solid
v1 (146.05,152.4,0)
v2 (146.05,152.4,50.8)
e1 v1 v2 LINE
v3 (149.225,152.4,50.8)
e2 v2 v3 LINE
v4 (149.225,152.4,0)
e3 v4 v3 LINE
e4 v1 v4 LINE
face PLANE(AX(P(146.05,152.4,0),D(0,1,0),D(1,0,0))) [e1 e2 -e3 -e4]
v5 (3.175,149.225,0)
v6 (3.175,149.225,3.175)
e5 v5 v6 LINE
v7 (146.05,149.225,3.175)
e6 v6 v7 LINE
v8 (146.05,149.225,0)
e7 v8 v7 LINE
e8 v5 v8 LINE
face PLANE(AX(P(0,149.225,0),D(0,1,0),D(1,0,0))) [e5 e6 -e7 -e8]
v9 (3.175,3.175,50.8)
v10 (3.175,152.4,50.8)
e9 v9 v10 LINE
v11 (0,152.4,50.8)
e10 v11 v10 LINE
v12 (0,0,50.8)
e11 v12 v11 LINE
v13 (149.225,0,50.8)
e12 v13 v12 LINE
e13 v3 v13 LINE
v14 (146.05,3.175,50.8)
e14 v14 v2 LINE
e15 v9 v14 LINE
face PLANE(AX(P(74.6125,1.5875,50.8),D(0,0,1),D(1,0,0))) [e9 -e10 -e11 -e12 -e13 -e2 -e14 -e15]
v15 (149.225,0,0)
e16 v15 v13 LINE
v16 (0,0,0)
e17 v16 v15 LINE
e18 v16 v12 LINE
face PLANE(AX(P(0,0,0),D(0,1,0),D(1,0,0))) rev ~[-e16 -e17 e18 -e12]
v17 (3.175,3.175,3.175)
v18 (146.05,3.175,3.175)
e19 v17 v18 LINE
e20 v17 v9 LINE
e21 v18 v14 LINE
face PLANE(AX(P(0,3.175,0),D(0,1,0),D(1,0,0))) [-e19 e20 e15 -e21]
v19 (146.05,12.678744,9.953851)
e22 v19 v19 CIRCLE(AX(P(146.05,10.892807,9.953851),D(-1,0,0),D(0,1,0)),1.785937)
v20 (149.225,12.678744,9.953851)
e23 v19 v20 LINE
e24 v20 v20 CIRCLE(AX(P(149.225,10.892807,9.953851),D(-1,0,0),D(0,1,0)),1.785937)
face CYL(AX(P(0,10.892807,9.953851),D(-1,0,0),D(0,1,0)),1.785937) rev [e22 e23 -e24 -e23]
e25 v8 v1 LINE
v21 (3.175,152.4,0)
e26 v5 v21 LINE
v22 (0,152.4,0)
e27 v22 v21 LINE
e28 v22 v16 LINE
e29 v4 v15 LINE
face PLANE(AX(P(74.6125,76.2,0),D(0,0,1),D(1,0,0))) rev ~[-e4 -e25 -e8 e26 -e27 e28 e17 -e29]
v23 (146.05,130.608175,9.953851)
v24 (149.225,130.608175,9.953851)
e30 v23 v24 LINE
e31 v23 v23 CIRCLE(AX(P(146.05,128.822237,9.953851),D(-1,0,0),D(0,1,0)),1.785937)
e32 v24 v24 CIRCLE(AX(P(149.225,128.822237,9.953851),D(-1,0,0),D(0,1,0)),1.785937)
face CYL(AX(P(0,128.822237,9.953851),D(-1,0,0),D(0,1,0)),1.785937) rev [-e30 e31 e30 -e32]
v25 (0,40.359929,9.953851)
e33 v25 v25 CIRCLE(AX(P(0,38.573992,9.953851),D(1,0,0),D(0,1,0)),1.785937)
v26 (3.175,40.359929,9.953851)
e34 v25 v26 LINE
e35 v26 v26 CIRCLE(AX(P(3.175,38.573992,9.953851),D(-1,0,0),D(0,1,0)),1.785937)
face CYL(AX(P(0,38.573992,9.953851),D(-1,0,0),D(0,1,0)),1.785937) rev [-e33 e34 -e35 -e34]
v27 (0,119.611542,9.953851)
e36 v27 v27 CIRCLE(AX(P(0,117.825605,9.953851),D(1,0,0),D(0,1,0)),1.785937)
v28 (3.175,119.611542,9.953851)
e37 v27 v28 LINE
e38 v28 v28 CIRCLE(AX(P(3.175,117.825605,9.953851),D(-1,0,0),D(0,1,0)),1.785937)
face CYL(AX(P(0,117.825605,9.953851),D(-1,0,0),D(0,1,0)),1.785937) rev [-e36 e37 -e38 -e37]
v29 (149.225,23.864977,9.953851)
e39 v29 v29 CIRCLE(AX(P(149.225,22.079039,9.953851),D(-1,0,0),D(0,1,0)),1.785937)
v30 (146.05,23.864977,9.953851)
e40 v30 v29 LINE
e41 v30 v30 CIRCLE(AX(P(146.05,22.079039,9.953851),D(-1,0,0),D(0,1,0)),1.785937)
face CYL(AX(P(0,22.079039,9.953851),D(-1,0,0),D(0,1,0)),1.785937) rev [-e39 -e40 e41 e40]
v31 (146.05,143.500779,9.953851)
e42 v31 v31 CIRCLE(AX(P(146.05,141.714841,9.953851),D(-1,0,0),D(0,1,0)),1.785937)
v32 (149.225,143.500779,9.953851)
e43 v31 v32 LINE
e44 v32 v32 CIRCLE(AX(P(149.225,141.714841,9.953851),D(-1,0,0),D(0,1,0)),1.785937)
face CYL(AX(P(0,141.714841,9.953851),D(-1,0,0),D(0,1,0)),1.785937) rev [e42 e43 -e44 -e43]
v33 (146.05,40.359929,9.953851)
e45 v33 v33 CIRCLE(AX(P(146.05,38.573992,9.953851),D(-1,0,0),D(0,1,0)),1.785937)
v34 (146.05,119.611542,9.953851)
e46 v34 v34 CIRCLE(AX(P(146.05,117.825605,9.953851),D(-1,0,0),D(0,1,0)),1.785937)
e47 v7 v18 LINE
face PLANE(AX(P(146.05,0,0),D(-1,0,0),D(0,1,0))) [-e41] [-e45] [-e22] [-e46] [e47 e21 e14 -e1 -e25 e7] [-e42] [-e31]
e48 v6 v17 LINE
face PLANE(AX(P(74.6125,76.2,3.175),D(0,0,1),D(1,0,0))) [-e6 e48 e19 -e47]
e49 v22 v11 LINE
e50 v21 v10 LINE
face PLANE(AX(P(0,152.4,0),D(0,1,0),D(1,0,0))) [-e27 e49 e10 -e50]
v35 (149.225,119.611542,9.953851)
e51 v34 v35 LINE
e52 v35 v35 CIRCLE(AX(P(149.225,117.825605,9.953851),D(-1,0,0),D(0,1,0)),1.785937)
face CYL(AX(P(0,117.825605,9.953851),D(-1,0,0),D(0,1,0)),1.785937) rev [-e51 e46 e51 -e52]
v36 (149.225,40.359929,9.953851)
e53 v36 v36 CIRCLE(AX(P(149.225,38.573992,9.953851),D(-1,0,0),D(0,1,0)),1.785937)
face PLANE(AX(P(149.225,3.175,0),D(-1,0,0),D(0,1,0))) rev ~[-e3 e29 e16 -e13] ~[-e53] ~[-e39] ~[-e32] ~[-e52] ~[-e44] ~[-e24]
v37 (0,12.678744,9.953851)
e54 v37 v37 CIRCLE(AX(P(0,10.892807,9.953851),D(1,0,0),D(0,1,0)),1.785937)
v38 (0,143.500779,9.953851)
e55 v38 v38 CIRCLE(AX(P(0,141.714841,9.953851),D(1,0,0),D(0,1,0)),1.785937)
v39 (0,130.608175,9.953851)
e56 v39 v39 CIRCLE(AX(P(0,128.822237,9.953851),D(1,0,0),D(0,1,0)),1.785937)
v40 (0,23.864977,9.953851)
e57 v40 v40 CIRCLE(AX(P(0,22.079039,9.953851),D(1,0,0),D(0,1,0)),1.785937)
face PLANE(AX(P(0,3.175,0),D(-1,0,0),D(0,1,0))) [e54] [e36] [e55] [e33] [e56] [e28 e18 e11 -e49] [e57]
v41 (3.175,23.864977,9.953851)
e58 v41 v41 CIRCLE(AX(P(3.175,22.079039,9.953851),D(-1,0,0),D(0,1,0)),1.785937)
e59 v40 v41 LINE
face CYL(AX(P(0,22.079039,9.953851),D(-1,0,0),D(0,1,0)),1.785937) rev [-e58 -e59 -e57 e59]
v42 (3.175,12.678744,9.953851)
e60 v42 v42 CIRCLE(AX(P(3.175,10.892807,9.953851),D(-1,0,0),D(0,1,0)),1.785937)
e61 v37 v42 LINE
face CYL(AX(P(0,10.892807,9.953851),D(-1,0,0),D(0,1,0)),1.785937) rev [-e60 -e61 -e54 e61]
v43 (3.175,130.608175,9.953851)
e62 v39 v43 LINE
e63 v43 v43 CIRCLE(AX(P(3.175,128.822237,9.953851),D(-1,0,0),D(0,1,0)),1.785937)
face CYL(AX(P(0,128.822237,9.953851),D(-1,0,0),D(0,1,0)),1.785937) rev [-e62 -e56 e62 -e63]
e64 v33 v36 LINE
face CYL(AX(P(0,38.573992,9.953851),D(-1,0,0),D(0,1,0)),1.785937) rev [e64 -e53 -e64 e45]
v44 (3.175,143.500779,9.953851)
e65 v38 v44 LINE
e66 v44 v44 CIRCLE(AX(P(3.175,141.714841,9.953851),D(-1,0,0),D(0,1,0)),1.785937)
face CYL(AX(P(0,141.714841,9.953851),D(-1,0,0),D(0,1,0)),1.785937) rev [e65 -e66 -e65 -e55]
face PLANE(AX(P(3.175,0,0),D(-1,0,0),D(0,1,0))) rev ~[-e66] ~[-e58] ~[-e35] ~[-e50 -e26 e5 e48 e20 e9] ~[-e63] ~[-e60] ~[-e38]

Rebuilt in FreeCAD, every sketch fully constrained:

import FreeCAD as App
import Part
import Sketcher
from FreeCAD import Vector
Q = App.Units.Quantity


def add_polygon(sketch, points):
    """Adds a closed chain of lines whose ends are joined by coincident constraints."""
    first, n = sketch.GeometryCount, len(points)
    for a, b in zip(points, points[1:] + points[:1]):
        sketch.addGeometry(Part.LineSegment(App.Vector(*a, 0), App.Vector(*b, 0)), False)
    for i in range(n):
        sketch.addConstraint(Sketcher.Constraint("Coincident", first + i, 2, first + (i + 1) % n, 1))

doc = App.newDocument("Part")
body = doc.addObject("PartDesign::Body", "Body")

# Sketch on XY plane
sketch1 = body.newObject("Sketcher::SketchObject", "Sketch")
sketch1.AttachmentSupport = (doc.getObject("XY_Plane"), [""])
sketch1.MapMode = "FlatFace"
add_polygon(sketch1, [(0, 3.2), (0, 0), (149.2, 0), (149.2, 3.2)])  # lines 0-3
sketch1.addConstraint(Sketcher.Constraint("Vertical", 0))
sketch1.addConstraint(Sketcher.Constraint("Horizontal", 1))
sketch1.addConstraint(Sketcher.Constraint("Vertical", 2))
sketch1.addConstraint(Sketcher.Constraint("Horizontal", 3))
sketch1.addConstraint(Sketcher.Constraint("Coincident", 0, 2, -1, 1))
sketch1.addConstraint(Sketcher.Constraint("DistanceX", 1, 1, 1, 2, Q("5.875 in")))
sketch1.addConstraint(Sketcher.Constraint("DistanceY", 0, 2, 0, 1, Q("0.125 in")))
pad1 = body.newObject("PartDesign::Pad", "Pad")
pad1.Profile = sketch1
pad1.Length = Q("2 in")

# Sketch on XY plane
sketch2 = body.newObject("Sketcher::SketchObject", "Sketch001")
sketch2.AttachmentSupport = (doc.getObject("XY_Plane"), [""])
sketch2.MapMode = "FlatFace"
add_polygon(sketch2, [(0, 149), (0, 3), (149, 3), (149, 149)])  # lines 0-3
sketch2.addConstraint(Sketcher.Constraint("Vertical", 0))
sketch2.addConstraint(Sketcher.Constraint("Horizontal", 1))
sketch2.addConstraint(Sketcher.Constraint("Vertical", 2))
sketch2.addConstraint(Sketcher.Constraint("Horizontal", 3))
sketch2.addConstraint(Sketcher.Constraint("PointOnObject", 0, 2, -2))
sketch2.addConstraint(Sketcher.Constraint("DistanceY", 0, 2, 0, 1, Q("5.75 in")))
sketch2.addConstraint(Sketcher.Constraint("DistanceX", 1, 1, 1, 2, Q("5.875 in")))
sketch2.addConstraint(Sketcher.Constraint("DistanceY", -1, 1, 0, 2, Q("0.125 in")))
pad2 = body.newObject("PartDesign::Pad", "Pad001")
pad2.Profile = sketch2
pad2.Length = Q("0.125 in")

# Sketch on XY plane
sketch3 = body.newObject("Sketcher::SketchObject", "Sketch002")
sketch3.AttachmentSupport = (doc.getObject("XY_Plane"), [""])
sketch3.MapMode = "FlatFace"
add_polygon(sketch3, [(0, 152.4), (0, 0), (3.2, 0), (3.2, 152.4)])  # lines 0-3
sketch3.addConstraint(Sketcher.Constraint("Vertical", 0))
sketch3.addConstraint(Sketcher.Constraint("Horizontal", 1))
sketch3.addConstraint(Sketcher.Constraint("Vertical", 2))
sketch3.addConstraint(Sketcher.Constraint("Horizontal", 3))
sketch3.addConstraint(Sketcher.Constraint("Coincident", 0, 2, -1, 1))
sketch3.addConstraint(Sketcher.Constraint("DistanceY", 0, 2, 0, 1, Q("6 in")))
sketch3.addConstraint(Sketcher.Constraint("DistanceX", 1, 1, 1, 2, Q("0.125 in")))
pad3 = body.newObject("PartDesign::Pad", "Pad002")
pad3.Profile = sketch3
pad3.Length = Q("2 in")

# Sketch on XY plane
sketch4 = body.newObject("Sketcher::SketchObject", "Sketch003")
sketch4.AttachmentSupport = (doc.getObject("XY_Plane"), [""])
sketch4.MapMode = "FlatFace"
add_polygon(sketch4, [(146.1, 152.4), (146.1, 0), (149.2, 0), (149.2, 152.4)])  # lines 0-3
sketch4.addConstraint(Sketcher.Constraint("Vertical", 0))
sketch4.addConstraint(Sketcher.Constraint("Horizontal", 1))
sketch4.addConstraint(Sketcher.Constraint("Vertical", 2))
sketch4.addConstraint(Sketcher.Constraint("Horizontal", 3))
sketch4.addConstraint(Sketcher.Constraint("PointOnObject", 0, 2, -1))
sketch4.addConstraint(Sketcher.Constraint("DistanceY", 0, 2, 0, 1, Q("6 in")))
sketch4.addConstraint(Sketcher.Constraint("DistanceX", 1, 1, 1, 2, Q("0.125 in")))
sketch4.addConstraint(Sketcher.Constraint("DistanceX", -1, 1, 0, 2, Q("5.75 in")))
pad4 = body.newObject("PartDesign::Pad", "Pad003")
pad4.Profile = sketch4
pad4.Length = Q("2 in")

# Sketch on YZ plane
sketch5 = body.newObject("Sketcher::SketchObject", "Sketch004")
sketch5.AttachmentSupport = (doc.getObject("YZ_Plane"), [""])
sketch5.MapMode = "FlatFace"
sketch5.addGeometry(Part.Circle(Vector(10.9, 10, 0), Vector(0, 0, 1), 1.8), False)
sketch5.addGeometry(Part.Circle(Vector(22.1, 10, 0), Vector(0, 0, 1), 1.8), False)
sketch5.addGeometry(Part.Circle(Vector(38.6, 10, 0), Vector(0, 0, 1), 1.8), False)
sketch5.addGeometry(Part.Circle(Vector(141.7, 10, 0), Vector(0, 0, 1), 1.8), False)
sketch5.addGeometry(Part.Circle(Vector(128.8, 10, 0), Vector(0, 0, 1), 1.8), False)
sketch5.addGeometry(Part.Circle(Vector(117.8, 10, 0), Vector(0, 0, 1), 1.8), False)
sketch5.addConstraint(Sketcher.Constraint("Equal", 0, 1))
sketch5.addConstraint(Sketcher.Constraint("Equal", 1, 2))
sketch5.addConstraint(Sketcher.Constraint("Equal", 2, 3))
sketch5.addConstraint(Sketcher.Constraint("Equal", 3, 4))
sketch5.addConstraint(Sketcher.Constraint("Equal", 4, 5))
sketch5.addConstraint(Sketcher.Constraint("Horizontal", 0, 3, 1, 3))
sketch5.addConstraint(Sketcher.Constraint("Horizontal", 1, 3, 2, 3))
sketch5.addConstraint(Sketcher.Constraint("Horizontal", 2, 3, 3, 3))
sketch5.addConstraint(Sketcher.Constraint("Horizontal", 3, 3, 4, 3))
sketch5.addConstraint(Sketcher.Constraint("Horizontal", 4, 3, 5, 3))
sketch5.addConstraint(Sketcher.Constraint("Diameter", 0, Q("0.140625 in")))
sketch5.addConstraint(Sketcher.Constraint("DistanceX", 1, 3, 3, 3, 119.635802))
sketch5.addConstraint(Sketcher.Constraint("DistanceX", 0, 3, 5, 3, 106.932798))
sketch5.addConstraint(Sketcher.Constraint("DistanceY", -1, 1, 0, 3, 9.953851))
sketch5.addConstraint(Sketcher.Constraint("DistanceX", -1, 1, 1, 3, 22.079039))
sketch5.addConstraint(Sketcher.Constraint("DistanceX", -1, 1, 2, 3, 38.573992))
sketch5.addConstraint(Sketcher.Constraint("DistanceX", 0, 3, 4, 3, 117.929431))
sketch5.addConstraint(Sketcher.Constraint("DistanceX", -1, 1, 0, 3, 10.892807))
pocket1 = body.newObject("PartDesign::Pocket", "Pocket")
pocket1.Profile = sketch5
pocket1.Length = Q("10 in")
pocket1.Reversed = True

doc.recompute()
